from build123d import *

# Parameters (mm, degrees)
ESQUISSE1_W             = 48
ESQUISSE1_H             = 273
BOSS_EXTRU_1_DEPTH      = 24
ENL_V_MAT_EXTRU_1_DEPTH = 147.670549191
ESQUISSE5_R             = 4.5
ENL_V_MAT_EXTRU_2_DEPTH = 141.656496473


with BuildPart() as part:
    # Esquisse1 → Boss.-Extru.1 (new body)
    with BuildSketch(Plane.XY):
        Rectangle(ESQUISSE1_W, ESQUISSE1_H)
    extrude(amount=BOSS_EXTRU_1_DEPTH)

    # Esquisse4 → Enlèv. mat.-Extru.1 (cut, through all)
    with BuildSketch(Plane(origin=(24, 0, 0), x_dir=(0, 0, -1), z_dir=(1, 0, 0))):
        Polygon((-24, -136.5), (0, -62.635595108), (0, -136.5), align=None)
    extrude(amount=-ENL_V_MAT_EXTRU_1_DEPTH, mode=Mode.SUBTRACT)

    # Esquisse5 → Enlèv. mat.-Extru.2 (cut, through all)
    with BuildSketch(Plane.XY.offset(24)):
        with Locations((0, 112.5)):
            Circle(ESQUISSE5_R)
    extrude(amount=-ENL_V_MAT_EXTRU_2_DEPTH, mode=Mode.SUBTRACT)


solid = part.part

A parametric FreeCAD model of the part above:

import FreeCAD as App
import Part
import Sketcher

V = App.Vector
Q = App.Units.Quantity


def add_polygon(sketch, points):
    """Adds a closed chain of lines whose ends are joined by coincident constraints."""
    first, n = sketch.GeometryCount, len(points)
    for a, b in zip(points, points[1:] + points[:1]):
        sketch.addGeometry(Part.LineSegment(App.Vector(*a, 0), App.Vector(*b, 0)), False)
    for i in range(n):
        sketch.addConstraint(Sketcher.Constraint("Coincident", first + i, 2, first + (i + 1) % n, 1))

doc = App.newDocument("Part")
body = doc.addObject("PartDesign::Body", "Body")

# Sketch on XY plane
sketch1 = doc.addObject("Sketcher::SketchObject", "Sketch")
body.addObject(sketch1)
sketch1.AttachmentSupport = (doc.XY_Plane, [""])
sketch1.MapMode = "FlatFace"
add_polygon(sketch1, [(-24, 136), (-24, -136), (24, -136), (24, 136)])  # lines 0-3
sketch1.addConstraint(Sketcher.Constraint("Vertical", 0))
sketch1.addConstraint(Sketcher.Constraint("Horizontal", 1))
sketch1.addConstraint(Sketcher.Constraint("Vertical", 2))
sketch1.addConstraint(Sketcher.Constraint("Horizontal", 3))
sketch1.addConstraint(Sketcher.Constraint("Symmetric", 0, 2, 2, 2, -1, 1))
sketch1.addConstraint(Sketcher.Constraint("DistanceX", 1, 1, 1, 2, Q("48 mm")))
sketch1.addConstraint(Sketcher.Constraint("DistanceY", 0, 2, 0, 1, Q("273 mm")))
pad1 = doc.addObject("PartDesign::Pad", "Pad")
body.addObject(pad1)
pad1.Profile = sketch1
pad1.Length = 24

# Sketch on YZ plane
sketch2 = doc.addObject("Sketcher::SketchObject", "Sketch001")
body.addObject(sketch2)
sketch2.AttachmentSupport = (doc.YZ_Plane, [""])
sketch2.MapMode = "FlatFace"
sketch2.AttachmentOffset = App.Placement(V(0, 0, 24), App.Rotation())
add_polygon(sketch2, [(-63, 0), (-136, 24), (-136, 0)])  # lines 0-2
sketch2.addConstraint(Sketcher.Constraint("Vertical", 1))
sketch2.addConstraint(Sketcher.Constraint("Horizontal", 2))
sketch2.addConstraint(Sketcher.Constraint("PointOnObject", 1, 2, -1))
sketch2.addConstraint(Sketcher.Constraint("DistanceY", 1, 2, 1, 1, Q("24 mm")))
sketch2.addConstraint(Sketcher.Constraint("Angle", 0, Q("162 deg")))
sketch2.addConstraint(Sketcher.Constraint("DistanceX", 0, 2, -1, 1, Q("136.5 mm")))
pocket1 = doc.addObject("PartDesign::Pocket", "Pocket")
body.addObject(pocket1)
pocket1.Profile = sketch2
pocket1.Type = "ThroughAll"

# Sketch on XY plane
sketch3 = doc.addObject("Sketcher::SketchObject", "Sketch002")
body.addObject(sketch3)
sketch3.AttachmentSupport = (doc.XY_Plane, [""])
sketch3.MapMode = "FlatFace"
sketch3.AttachmentOffset = App.Placement(V(0, 0, 24), App.Rotation())
sketch3.addGeometry(Part.Circle(V(0, 112.5, 0), V(0, 0, 1), 4.5), False)
sketch3.addConstraint(Sketcher.Constraint("PointOnObject", 0, 3, -2))
sketch3.addConstraint(Sketcher.Constraint("Diameter", 0, Q("9 mm")))
sketch3.addConstraint(Sketcher.Constraint("DistanceY", -1, 1, 0, 3, Q("112.5 mm")))
pocket2 = doc.addObject("PartDesign::Pocket", "Pocket001")
body.addObject(pocket2)
pocket2.Profile = sketch3
pocket2.Type = "ThroughAll"

doc.recompute()
